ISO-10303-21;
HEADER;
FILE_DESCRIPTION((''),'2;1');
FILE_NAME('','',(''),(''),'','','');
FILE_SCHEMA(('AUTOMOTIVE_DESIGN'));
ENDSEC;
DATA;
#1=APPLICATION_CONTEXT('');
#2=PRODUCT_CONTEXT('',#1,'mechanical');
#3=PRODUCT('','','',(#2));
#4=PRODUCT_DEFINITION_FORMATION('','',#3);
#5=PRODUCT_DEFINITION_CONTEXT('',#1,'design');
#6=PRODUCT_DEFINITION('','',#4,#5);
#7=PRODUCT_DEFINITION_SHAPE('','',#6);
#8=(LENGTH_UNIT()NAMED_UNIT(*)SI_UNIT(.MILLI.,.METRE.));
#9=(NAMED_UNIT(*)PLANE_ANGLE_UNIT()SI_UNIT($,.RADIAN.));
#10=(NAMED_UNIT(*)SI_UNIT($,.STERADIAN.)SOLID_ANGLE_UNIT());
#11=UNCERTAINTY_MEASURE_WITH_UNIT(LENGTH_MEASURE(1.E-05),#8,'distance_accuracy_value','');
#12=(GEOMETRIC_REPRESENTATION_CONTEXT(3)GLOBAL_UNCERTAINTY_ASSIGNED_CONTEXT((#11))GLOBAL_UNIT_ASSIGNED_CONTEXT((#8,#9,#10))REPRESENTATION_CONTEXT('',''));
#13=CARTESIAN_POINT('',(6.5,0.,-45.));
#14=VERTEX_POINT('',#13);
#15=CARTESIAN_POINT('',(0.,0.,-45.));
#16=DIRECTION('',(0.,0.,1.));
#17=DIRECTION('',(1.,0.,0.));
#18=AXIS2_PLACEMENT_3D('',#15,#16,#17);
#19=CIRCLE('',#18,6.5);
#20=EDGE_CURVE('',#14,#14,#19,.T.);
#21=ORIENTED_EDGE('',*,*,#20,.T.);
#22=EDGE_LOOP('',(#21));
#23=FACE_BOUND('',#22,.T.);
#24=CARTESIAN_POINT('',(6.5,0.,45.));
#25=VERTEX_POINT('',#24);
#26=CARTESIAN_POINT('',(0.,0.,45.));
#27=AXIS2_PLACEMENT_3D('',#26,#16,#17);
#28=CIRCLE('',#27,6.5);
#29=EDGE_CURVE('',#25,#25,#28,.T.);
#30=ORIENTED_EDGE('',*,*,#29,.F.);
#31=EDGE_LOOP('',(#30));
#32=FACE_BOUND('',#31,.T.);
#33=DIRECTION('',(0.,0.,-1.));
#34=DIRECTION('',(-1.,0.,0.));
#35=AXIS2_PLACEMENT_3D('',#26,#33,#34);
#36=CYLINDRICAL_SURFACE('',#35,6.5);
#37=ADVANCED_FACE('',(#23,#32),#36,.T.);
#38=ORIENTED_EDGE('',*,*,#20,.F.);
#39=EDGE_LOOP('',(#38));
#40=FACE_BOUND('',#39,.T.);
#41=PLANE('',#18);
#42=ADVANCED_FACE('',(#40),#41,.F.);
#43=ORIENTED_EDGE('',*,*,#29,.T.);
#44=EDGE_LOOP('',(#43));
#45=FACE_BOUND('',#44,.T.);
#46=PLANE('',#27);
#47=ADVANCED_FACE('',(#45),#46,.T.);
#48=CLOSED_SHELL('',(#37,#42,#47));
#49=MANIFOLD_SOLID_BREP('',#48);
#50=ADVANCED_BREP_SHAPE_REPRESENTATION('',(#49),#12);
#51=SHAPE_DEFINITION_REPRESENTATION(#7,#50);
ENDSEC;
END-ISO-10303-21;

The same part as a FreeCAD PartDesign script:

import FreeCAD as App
import Part
import Sketcher
Q = App.Units.Quantity

doc = App.newDocument("Part")
body = doc.addObject("PartDesign::Body", "Body")

sketch1 = body.newObject("Sketcher::SketchObject", "Sketch")
sketch1.AttachmentSupport = (doc.getObject("XY_Plane"), [""])
sketch1.MapMode = "FlatFace"
sketch1.addGeometry(Part.Circle(App.Vector(0, 0, 0), App.Vector(0, 0, 1), 6), False)
sketch1.addConstraint(Sketcher.Constraint("Coincident", 0, 3, -1, 1))
sketch1.addConstraint(Sketcher.Constraint("Diameter", 0, Q("13 mm")))
pad1 = body.newObject("PartDesign::Pad", "Pad")
pad1.Profile = sketch1
pad1.Length = 90
pad1.Midplane = True

doc.recompute()
